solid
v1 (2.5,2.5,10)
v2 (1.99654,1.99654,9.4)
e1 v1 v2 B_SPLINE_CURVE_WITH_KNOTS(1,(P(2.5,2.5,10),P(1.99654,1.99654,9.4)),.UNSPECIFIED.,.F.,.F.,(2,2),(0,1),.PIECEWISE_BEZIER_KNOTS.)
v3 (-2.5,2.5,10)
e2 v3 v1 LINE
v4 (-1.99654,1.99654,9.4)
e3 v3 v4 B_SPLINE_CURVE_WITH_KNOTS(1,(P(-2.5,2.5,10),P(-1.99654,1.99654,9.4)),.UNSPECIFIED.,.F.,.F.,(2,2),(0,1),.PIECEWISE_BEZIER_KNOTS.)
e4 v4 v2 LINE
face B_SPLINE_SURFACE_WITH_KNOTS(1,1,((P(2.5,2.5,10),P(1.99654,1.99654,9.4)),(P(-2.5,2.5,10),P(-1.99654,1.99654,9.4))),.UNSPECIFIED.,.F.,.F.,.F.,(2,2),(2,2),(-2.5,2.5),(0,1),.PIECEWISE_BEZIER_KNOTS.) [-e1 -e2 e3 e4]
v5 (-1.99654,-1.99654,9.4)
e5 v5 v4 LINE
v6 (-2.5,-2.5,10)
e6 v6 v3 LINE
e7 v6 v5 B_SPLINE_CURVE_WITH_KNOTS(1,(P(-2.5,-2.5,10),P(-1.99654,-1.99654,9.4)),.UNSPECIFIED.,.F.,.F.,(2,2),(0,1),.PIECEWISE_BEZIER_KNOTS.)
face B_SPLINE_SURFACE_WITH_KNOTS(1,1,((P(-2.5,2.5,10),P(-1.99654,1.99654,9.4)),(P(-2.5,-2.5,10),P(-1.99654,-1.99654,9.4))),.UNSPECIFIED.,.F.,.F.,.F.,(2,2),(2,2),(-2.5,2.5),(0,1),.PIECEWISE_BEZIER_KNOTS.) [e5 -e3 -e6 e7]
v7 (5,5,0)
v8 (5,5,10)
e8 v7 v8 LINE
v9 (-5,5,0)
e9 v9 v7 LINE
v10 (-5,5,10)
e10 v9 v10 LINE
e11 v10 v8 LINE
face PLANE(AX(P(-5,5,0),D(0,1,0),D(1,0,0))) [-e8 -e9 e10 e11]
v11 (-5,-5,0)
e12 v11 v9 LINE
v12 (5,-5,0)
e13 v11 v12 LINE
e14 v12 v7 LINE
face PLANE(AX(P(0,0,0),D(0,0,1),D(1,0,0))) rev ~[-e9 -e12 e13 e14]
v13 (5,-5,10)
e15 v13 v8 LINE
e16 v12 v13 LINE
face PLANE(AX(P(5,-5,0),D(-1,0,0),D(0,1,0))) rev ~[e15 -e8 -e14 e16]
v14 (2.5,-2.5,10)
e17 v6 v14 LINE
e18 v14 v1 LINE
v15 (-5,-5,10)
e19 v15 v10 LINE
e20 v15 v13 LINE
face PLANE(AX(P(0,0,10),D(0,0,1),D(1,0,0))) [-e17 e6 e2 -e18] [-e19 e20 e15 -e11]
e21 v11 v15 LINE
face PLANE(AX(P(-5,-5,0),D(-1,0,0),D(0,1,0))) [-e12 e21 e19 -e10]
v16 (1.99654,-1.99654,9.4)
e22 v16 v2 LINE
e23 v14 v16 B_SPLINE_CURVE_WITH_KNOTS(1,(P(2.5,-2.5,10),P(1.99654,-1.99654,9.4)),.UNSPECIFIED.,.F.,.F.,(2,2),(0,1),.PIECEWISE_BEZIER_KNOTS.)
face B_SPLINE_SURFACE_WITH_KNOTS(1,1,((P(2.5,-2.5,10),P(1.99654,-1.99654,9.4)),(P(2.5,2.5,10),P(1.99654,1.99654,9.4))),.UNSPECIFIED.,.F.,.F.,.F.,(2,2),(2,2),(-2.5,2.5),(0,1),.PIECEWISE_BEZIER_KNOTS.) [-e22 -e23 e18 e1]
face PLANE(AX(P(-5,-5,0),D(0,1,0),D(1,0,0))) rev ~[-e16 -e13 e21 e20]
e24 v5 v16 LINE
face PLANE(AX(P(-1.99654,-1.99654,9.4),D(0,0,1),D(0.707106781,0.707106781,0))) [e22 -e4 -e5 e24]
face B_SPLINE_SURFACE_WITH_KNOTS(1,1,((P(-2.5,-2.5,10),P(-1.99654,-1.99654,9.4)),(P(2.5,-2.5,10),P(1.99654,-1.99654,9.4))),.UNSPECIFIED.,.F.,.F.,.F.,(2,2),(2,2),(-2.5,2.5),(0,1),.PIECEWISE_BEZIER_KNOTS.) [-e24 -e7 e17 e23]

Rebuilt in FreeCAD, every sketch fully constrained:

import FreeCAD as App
import Part
import Sketcher

V = App.Vector

doc = App.newDocument("Part")
body = doc.addObject("PartDesign::Body", "Body")

sketch1 = doc.addObject("Sketcher::SketchObject", "Sketch")
body.addObject(sketch1)
sketch1.AttachmentSupport = (doc.XY_Plane, [""])
sketch1.MapMode = "FlatFace"
sketch1.addGeometry(Part.LineSegment(V(-5, 5, 0), V(-5, -5, 0)), False)
sketch1.addGeometry(Part.LineSegment(V(-5, -5, 0), V(5, -5, 0)), False)
sketch1.addGeometry(Part.LineSegment(V(5, -5, 0), V(5, 5, 0)), False)
sketch1.addGeometry(Part.LineSegment(V(5, 5, 0), V(-5, 5, 0)), False)
sketch1.addConstraint(Sketcher.Constraint("Coincident", 0, 2, 1, 1))
sketch1.addConstraint(Sketcher.Constraint("Coincident", 1, 2, 2, 1))
sketch1.addConstraint(Sketcher.Constraint("Coincident", 2, 2, 3, 1))
sketch1.addConstraint(Sketcher.Constraint("Coincident", 3, 2, 0, 1))
sketch1.addConstraint(Sketcher.Constraint("Vertical", 0))
sketch1.addConstraint(Sketcher.Constraint("Horizontal", 1))
sketch1.addConstraint(Sketcher.Constraint("Vertical", 2))
sketch1.addConstraint(Sketcher.Constraint("Horizontal", 3))
sketch1.addConstraint(Sketcher.Constraint("Symmetric", 0, 2, 2, 2, -1, 1))
sketch1.addConstraint(Sketcher.Constraint("Equal", 3, 0))
sketch1.addConstraint(Sketcher.Constraint("DistanceX", 1, 1, 1, 2, 10.0))
pad1 = doc.addObject("PartDesign::Pad", "Pad")
body.addObject(pad1)
pad1.Profile = sketch1
pad1.Length = 10

sketch2 = doc.addObject("Sketcher::SketchObject", "Sketch001")
body.addObject(sketch2)
sketch2.AttachmentSupport = (doc.XY_Plane, [""])
sketch2.MapMode = "FlatFace"
sketch2.AttachmentOffset = App.Placement(V(0, 0, 10), App.Rotation())
sketch2.addGeometry(Part.LineSegment(V(-2.5, 2.5, 0), V(-2.5, -2.5, 0)), False)
sketch2.addGeometry(Part.LineSegment(V(-2.5, -2.5, 0), V(2.5, -2.5, 0)), False)
sketch2.addGeometry(Part.LineSegment(V(2.5, -2.5, 0), V(2.5, 2.5, 0)), False)
sketch2.addGeometry(Part.LineSegment(V(2.5, 2.5, 0), V(-2.5, 2.5, 0)), False)
sketch2.addConstraint(Sketcher.Constraint("Coincident", 0, 2, 1, 1))
sketch2.addConstraint(Sketcher.Constraint("Coincident", 1, 2, 2, 1))
sketch2.addConstraint(Sketcher.Constraint("Coincident", 2, 2, 3, 1))
sketch2.addConstraint(Sketcher.Constraint("Coincident", 3, 2, 0, 1))
sketch2.addConstraint(Sketcher.Constraint("Vertical", 0))
sketch2.addConstraint(Sketcher.Constraint("Horizontal", 1))
sketch2.addConstraint(Sketcher.Constraint("Vertical", 2))
sketch2.addConstraint(Sketcher.Constraint("Horizontal", 3))
sketch2.addConstraint(Sketcher.Constraint("Symmetric", 0, 2, 2, 2, -1, 1))
sketch2.addConstraint(Sketcher.Constraint("Equal", 3, 0))
sketch2.addConstraint(Sketcher.Constraint("DistanceX", 1, 1, 1, 2, 5.0))
pocket1 = doc.addObject("PartDesign::Pocket", "Pocket")
body.addObject(pocket1)
pocket1.Profile = sketch2
pocket1.Length = 0.6
pocket1.TaperAngle = -40

doc.recompute()
